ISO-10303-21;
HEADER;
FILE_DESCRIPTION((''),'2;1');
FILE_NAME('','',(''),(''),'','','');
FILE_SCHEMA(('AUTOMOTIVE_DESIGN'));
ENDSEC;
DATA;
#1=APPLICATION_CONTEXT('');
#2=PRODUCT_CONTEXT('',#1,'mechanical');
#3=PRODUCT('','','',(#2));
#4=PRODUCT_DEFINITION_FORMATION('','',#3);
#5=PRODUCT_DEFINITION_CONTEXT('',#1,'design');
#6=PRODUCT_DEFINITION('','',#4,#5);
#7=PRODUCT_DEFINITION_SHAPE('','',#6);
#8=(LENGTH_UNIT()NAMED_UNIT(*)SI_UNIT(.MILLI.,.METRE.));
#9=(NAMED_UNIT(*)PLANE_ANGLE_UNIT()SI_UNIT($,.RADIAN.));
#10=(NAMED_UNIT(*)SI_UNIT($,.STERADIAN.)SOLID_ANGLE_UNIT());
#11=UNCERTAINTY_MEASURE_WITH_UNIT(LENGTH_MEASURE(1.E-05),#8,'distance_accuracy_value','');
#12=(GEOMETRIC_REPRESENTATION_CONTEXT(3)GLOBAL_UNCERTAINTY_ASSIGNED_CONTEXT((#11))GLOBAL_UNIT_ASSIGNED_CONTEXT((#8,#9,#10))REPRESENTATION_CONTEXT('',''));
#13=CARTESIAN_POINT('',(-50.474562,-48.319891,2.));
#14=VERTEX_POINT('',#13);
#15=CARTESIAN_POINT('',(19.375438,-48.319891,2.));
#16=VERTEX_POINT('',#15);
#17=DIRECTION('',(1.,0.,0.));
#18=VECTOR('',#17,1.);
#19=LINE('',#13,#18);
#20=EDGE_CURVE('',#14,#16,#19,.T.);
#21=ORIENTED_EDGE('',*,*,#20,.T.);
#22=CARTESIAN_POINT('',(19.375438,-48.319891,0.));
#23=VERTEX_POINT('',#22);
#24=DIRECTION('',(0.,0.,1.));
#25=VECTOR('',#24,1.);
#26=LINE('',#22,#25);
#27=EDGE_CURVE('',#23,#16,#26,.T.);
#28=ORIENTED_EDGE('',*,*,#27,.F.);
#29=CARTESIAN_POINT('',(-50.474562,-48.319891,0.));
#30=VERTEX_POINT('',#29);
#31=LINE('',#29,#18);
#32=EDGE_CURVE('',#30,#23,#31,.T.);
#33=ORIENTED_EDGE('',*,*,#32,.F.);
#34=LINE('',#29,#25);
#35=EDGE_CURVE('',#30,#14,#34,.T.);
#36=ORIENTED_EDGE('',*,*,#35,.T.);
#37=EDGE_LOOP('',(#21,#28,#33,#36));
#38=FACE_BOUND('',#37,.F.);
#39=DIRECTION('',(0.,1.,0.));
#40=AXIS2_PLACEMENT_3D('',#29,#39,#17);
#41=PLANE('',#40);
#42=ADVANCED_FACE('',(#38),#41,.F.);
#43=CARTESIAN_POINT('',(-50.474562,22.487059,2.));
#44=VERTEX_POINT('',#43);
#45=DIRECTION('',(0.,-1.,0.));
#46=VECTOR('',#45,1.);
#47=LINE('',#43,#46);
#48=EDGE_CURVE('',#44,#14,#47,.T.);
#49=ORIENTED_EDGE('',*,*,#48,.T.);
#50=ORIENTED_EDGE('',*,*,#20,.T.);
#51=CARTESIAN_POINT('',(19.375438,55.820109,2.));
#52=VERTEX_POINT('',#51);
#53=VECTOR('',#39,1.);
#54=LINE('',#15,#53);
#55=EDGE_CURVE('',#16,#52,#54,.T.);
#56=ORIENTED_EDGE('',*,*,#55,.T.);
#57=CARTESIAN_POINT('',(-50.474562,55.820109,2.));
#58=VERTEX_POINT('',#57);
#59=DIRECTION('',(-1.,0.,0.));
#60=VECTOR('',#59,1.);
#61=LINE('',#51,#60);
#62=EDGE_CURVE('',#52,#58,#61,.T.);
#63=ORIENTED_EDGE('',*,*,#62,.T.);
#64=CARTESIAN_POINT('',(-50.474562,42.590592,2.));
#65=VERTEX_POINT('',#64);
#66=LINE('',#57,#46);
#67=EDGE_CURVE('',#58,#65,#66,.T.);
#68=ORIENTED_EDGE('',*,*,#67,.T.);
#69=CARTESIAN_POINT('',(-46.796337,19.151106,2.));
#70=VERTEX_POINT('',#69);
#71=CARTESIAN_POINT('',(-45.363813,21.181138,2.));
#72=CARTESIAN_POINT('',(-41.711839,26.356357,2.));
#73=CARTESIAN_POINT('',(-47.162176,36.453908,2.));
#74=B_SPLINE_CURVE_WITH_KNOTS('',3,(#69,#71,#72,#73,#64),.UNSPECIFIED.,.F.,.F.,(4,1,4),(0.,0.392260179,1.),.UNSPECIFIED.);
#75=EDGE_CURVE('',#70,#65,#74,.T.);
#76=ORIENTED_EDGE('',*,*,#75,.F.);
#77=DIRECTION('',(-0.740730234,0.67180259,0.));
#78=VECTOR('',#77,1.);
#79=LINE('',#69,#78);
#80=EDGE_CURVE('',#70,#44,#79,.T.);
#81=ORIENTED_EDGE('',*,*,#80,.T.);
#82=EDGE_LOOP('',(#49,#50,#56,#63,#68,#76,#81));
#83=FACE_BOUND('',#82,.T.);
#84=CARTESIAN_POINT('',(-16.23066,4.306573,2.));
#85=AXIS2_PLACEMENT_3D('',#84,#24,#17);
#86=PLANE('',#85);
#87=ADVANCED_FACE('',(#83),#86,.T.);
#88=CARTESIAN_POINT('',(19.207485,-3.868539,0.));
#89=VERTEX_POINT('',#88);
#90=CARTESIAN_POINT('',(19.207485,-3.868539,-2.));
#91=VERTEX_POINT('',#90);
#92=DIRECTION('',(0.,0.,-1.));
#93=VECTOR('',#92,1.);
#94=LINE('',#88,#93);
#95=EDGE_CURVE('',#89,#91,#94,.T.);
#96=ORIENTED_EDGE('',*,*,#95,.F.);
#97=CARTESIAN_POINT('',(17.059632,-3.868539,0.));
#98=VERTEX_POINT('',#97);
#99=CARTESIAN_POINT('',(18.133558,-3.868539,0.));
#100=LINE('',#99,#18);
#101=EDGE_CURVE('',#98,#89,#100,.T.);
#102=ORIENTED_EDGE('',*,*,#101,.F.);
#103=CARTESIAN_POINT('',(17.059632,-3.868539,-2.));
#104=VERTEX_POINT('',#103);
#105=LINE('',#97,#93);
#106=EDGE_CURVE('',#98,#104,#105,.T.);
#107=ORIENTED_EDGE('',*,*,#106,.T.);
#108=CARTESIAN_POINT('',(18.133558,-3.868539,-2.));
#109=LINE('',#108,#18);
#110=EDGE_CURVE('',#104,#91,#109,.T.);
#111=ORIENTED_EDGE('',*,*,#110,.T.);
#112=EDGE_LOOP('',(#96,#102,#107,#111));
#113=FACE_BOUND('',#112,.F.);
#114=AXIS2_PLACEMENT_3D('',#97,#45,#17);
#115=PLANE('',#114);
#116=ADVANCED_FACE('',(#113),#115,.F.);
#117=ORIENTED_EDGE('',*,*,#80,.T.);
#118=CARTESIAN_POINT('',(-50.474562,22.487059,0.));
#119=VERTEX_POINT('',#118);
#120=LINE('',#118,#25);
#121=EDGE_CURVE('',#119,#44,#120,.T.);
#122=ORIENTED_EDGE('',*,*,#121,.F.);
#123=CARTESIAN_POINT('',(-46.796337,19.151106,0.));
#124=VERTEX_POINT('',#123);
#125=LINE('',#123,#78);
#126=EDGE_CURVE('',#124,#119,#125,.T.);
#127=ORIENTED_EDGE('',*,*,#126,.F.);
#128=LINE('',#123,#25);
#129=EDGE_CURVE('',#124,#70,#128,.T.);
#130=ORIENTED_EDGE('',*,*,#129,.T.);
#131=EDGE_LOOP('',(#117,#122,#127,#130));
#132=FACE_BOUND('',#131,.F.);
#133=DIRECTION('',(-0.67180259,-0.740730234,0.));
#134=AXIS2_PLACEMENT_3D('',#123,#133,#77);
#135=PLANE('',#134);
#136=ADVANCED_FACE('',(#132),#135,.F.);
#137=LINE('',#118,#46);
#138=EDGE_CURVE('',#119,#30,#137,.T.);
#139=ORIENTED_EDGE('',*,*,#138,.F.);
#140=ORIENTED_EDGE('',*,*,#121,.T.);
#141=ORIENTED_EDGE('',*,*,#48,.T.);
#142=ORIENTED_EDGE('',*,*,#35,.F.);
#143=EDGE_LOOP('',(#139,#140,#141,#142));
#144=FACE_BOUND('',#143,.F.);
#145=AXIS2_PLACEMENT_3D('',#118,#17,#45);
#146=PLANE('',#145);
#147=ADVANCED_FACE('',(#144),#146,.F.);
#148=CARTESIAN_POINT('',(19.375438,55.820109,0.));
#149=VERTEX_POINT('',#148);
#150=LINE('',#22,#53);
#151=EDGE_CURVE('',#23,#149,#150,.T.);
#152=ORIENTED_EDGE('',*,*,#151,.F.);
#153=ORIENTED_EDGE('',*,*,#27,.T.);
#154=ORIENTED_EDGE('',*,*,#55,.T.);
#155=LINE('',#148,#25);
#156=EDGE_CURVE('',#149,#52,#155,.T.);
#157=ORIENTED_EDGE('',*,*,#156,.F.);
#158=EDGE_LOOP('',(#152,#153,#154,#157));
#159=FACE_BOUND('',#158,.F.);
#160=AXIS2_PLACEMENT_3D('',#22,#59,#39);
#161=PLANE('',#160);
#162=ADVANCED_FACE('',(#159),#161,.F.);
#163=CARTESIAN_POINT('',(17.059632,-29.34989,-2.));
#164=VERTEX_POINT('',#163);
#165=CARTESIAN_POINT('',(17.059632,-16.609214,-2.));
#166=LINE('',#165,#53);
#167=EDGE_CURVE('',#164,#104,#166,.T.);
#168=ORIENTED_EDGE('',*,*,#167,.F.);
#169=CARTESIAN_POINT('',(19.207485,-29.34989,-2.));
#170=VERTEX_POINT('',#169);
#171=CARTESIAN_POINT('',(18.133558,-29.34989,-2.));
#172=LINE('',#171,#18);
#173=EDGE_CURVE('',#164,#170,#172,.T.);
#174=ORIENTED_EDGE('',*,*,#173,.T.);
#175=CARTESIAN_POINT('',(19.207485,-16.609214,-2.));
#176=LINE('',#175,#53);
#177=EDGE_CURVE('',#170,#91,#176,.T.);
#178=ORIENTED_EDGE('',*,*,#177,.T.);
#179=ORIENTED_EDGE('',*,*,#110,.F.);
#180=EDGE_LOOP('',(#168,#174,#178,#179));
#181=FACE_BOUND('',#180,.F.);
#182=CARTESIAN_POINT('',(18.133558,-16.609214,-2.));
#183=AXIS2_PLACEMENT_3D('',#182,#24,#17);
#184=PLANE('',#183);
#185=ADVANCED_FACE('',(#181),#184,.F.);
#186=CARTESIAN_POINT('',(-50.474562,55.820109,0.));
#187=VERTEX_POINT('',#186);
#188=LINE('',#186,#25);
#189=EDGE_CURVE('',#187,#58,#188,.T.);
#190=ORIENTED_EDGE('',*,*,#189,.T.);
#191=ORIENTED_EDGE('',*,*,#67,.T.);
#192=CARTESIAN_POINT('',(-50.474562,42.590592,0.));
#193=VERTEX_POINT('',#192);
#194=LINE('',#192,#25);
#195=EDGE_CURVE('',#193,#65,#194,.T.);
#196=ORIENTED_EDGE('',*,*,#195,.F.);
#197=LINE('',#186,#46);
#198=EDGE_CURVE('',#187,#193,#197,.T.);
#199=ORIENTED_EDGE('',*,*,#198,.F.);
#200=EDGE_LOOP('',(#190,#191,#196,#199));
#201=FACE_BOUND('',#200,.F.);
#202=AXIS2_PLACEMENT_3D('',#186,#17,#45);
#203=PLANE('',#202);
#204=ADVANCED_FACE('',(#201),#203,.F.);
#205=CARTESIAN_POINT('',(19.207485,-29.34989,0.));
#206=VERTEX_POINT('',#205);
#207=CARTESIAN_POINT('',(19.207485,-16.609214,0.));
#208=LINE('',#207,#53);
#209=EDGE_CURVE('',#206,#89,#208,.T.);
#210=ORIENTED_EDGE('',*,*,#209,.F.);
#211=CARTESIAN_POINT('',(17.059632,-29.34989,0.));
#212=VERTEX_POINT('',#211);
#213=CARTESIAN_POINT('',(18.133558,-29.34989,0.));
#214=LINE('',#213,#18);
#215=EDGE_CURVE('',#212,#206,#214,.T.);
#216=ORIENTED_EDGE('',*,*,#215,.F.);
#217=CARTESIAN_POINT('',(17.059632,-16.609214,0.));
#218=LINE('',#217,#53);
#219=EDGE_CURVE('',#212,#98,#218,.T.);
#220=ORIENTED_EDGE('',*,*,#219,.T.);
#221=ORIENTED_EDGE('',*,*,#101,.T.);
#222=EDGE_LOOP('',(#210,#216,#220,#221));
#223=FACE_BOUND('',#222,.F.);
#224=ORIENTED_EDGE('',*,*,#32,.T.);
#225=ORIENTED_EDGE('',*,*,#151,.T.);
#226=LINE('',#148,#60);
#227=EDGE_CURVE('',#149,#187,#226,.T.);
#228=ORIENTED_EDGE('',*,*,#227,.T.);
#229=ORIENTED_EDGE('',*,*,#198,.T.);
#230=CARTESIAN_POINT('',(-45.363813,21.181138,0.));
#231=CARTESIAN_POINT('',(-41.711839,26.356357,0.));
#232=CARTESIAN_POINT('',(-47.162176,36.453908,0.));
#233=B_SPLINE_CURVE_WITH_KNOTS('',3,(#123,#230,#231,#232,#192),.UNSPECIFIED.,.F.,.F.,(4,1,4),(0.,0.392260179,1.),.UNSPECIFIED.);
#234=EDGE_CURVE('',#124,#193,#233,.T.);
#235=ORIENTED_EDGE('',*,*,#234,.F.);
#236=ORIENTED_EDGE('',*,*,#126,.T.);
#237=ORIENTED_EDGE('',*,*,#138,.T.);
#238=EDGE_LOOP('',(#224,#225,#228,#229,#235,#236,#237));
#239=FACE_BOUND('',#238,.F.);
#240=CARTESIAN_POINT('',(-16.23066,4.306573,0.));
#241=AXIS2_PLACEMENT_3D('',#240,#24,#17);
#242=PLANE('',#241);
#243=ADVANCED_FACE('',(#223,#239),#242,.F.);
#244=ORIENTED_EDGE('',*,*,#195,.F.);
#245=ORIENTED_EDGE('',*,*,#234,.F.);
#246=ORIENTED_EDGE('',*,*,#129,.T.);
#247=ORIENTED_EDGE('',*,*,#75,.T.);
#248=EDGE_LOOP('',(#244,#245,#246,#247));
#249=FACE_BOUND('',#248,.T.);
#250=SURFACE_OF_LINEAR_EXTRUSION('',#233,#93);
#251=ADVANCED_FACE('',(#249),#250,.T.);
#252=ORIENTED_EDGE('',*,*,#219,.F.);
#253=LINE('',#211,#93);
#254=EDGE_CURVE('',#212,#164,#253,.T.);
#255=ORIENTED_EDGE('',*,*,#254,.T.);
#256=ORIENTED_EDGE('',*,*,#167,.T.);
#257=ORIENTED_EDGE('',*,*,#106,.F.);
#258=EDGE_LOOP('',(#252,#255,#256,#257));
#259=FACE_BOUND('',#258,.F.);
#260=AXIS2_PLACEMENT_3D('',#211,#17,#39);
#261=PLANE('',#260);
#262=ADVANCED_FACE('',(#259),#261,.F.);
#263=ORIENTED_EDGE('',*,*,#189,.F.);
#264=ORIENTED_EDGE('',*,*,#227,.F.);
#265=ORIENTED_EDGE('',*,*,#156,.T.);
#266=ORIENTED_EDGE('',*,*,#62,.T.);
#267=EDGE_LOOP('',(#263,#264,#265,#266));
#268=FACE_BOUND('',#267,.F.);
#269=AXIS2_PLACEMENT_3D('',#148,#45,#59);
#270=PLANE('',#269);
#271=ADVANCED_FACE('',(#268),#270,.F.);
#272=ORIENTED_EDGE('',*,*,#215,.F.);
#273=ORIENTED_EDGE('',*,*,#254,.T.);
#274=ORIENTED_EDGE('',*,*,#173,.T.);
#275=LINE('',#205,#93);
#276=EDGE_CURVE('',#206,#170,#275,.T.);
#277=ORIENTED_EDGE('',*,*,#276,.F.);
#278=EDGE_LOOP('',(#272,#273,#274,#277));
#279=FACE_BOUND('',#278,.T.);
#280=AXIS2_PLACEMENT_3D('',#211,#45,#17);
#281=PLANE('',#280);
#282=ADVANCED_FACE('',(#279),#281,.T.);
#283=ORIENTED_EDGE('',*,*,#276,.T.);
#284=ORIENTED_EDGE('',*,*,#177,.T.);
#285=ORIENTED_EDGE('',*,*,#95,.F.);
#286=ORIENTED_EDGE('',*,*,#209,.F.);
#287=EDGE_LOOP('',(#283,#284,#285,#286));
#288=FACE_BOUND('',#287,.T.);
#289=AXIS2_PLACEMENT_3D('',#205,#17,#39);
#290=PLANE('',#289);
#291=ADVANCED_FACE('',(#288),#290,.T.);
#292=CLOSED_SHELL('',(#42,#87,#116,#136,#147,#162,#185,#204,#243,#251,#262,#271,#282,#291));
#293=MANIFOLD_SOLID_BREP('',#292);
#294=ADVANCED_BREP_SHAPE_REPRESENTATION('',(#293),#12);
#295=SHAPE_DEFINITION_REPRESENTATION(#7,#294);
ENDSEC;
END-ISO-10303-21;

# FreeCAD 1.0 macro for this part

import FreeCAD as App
import Part
import Sketcher
Q = App.Units.Quantity

doc = App.newDocument("Part")
params = doc.addObject("Spreadsheet::Sheet", "Params")
for row, (alias, value) in enumerate([
    ("sketch1_height", "4.1 in"),
    ("sketch1_width", "2.75 in"),
    ("pad1_length", "2 mm"),
    ("pad2_length", "2 mm"),
], start=1):
    params.set(f"A{row}", alias)
    params.set(f"B{row}", "=" + value)
    params.setAlias(f"B{row}", alias)

body = doc.addObject("PartDesign::Body", "Body")

sketch1 = doc.addObject("Sketcher::SketchObject", "Sketch")
body.addObject(sketch1)
sketch1.AttachmentSupport = (doc.XY_Plane, [""])
sketch1.MapMode = "FlatFace"
sketch1.addGeometry(Part.LineSegment(App.Vector(-50.474562, -48.319891, 0), App.Vector(19.375438, -48.319891, 0)), False)
sketch1.addGeometry(Part.LineSegment(App.Vector(19.375438, -48.319891, 0), App.Vector(19.375438, 55.820109, 0)), False)
sketch1.addGeometry(Part.LineSegment(App.Vector(19.375438, 55.820109, 0), App.Vector(-50.474562, 55.820109, 0)), False)
sketch1.addGeometry(Part.LineSegment(App.Vector(-50.474562, 55.820109, 0), App.Vector(-50.474562, 42.590592, 0)), False)
sketch1.addGeometry(Part.BSplineCurve([App.Vector(-46.796337, 19.151106, 0), App.Vector(-45.363813, 21.181138, 0), App.Vector(-41.711839, 26.356357, 0), App.Vector(-47.162176, 36.453908, 0), App.Vector(-50.474562, 42.590592, 0)], [4, 1, 4], [0, 0.392260179, 1], False, 3, [1, 1, 1, 1, 1], False), False)
sketch1.addGeometry(Part.LineSegment(App.Vector(-46.796337, 19.151106, 0), App.Vector(-50.474562, 22.487059, 0)), False)
sketch1.addGeometry(Part.LineSegment(App.Vector(-50.474562, 22.487059, 0), App.Vector(-50.474562, -48.319891, 0)), False)
sketch1.addConstraint(Sketcher.Constraint("Block", 4))
sketch1.addConstraint(Sketcher.Constraint("Coincident", 0, 2, 1, 1))
sketch1.addConstraint(Sketcher.Constraint("Coincident", 1, 2, 2, 1))
sketch1.addConstraint(Sketcher.Constraint("Coincident", 2, 2, 3, 1))
sketch1.addConstraint(Sketcher.Constraint("Coincident", 3, 2, 4, 2))
sketch1.addConstraint(Sketcher.Constraint("Coincident", 4, 1, 5, 1))
sketch1.addConstraint(Sketcher.Constraint("Coincident", 5, 2, 6, 1))
sketch1.addConstraint(Sketcher.Constraint("Coincident", 6, 2, 0, 1))
sketch1.addConstraint(Sketcher.Constraint("Horizontal", 0))
sketch1.addConstraint(Sketcher.Constraint("Vertical", 1))
sketch1.addConstraint(Sketcher.Constraint("Horizontal", 2))
sketch1.addConstraint(Sketcher.Constraint("Vertical", 3))
sketch1.addConstraint(Sketcher.Constraint("Vertical", 6))
sketch1.addConstraint(Sketcher.Constraint("Vertical", 3, 2, 5, 2))
sketch1.addConstraint(Sketcher.Constraint("DistanceY", 1, 1, 1, 2, Q("4.1 in")))
sketch1.addConstraint(Sketcher.Constraint("DistanceX", 0, 1, 0, 2, Q("2.75 in")))
sketch1.addConstraint(Sketcher.Constraint("DistanceY", 6, 2, 6, 1, 70.80695))
sketch1.addConstraint(Sketcher.Constraint("DistanceY", 3, 2, 3, 1, 13.229517))
sketch1.setExpression("Constraints[14]", "Params.sketch1_height")
sketch1.setExpression("Constraints[15]", "Params.sketch1_width")
pad1 = doc.addObject("PartDesign::Pad", "Pad")
body.addObject(pad1)
pad1.Profile = sketch1
pad1.setExpression("Length", "Params.pad1_length")

sketch2 = doc.addObject("Sketcher::SketchObject", "Sketch001")
body.addObject(sketch2)
sketch2.AttachmentSupport = (doc.XY_Plane, [""])
sketch2.MapMode = "FlatFace"
sketch2.addGeometry(Part.LineSegment(App.Vector(17.1, -3.9, 0), App.Vector(17.1, -29.3, 0)), False)
sketch2.addGeometry(Part.LineSegment(App.Vector(17.1, -29.3, 0), App.Vector(19.2, -29.3, 0)), False)
sketch2.addGeometry(Part.LineSegment(App.Vector(19.2, -29.3, 0), App.Vector(19.2, -3.9, 0)), False)
sketch2.addGeometry(Part.LineSegment(App.Vector(19.2, -3.9, 0), App.Vector(17.1, -3.9, 0)), False)
sketch2.addConstraint(Sketcher.Constraint("Coincident", 0, 2, 1, 1))
sketch2.addConstraint(Sketcher.Constraint("Coincident", 1, 2, 2, 1))
sketch2.addConstraint(Sketcher.Constraint("Coincident", 2, 2, 3, 1))
sketch2.addConstraint(Sketcher.Constraint("Coincident", 3, 2, 0, 1))
sketch2.addConstraint(Sketcher.Constraint("Vertical", 0))
sketch2.addConstraint(Sketcher.Constraint("Horizontal", 1))
sketch2.addConstraint(Sketcher.Constraint("Vertical", 2))
sketch2.addConstraint(Sketcher.Constraint("Horizontal", 3))
sketch2.addConstraint(Sketcher.Constraint("DistanceX", -1, 1, 1, 2, Q("0.7562002 in")))
sketch2.addConstraint(Sketcher.Constraint("DistanceY", 0, 2, 0, 1, 25.481351))
sketch2.addConstraint(Sketcher.Constraint("DistanceX", 1, 1, 1, 2, 2.147853))
sketch2.addConstraint(Sketcher.Constraint("DistanceY", 0, 2, -1, 1, 29.34989))
pad2 = doc.addObject("PartDesign::Pad", "Pad001")
body.addObject(pad2)
pad2.Profile = sketch2
pad2.setExpression("Length", "Params.pad2_length")
pad2.Reversed = True

doc.recompute()
